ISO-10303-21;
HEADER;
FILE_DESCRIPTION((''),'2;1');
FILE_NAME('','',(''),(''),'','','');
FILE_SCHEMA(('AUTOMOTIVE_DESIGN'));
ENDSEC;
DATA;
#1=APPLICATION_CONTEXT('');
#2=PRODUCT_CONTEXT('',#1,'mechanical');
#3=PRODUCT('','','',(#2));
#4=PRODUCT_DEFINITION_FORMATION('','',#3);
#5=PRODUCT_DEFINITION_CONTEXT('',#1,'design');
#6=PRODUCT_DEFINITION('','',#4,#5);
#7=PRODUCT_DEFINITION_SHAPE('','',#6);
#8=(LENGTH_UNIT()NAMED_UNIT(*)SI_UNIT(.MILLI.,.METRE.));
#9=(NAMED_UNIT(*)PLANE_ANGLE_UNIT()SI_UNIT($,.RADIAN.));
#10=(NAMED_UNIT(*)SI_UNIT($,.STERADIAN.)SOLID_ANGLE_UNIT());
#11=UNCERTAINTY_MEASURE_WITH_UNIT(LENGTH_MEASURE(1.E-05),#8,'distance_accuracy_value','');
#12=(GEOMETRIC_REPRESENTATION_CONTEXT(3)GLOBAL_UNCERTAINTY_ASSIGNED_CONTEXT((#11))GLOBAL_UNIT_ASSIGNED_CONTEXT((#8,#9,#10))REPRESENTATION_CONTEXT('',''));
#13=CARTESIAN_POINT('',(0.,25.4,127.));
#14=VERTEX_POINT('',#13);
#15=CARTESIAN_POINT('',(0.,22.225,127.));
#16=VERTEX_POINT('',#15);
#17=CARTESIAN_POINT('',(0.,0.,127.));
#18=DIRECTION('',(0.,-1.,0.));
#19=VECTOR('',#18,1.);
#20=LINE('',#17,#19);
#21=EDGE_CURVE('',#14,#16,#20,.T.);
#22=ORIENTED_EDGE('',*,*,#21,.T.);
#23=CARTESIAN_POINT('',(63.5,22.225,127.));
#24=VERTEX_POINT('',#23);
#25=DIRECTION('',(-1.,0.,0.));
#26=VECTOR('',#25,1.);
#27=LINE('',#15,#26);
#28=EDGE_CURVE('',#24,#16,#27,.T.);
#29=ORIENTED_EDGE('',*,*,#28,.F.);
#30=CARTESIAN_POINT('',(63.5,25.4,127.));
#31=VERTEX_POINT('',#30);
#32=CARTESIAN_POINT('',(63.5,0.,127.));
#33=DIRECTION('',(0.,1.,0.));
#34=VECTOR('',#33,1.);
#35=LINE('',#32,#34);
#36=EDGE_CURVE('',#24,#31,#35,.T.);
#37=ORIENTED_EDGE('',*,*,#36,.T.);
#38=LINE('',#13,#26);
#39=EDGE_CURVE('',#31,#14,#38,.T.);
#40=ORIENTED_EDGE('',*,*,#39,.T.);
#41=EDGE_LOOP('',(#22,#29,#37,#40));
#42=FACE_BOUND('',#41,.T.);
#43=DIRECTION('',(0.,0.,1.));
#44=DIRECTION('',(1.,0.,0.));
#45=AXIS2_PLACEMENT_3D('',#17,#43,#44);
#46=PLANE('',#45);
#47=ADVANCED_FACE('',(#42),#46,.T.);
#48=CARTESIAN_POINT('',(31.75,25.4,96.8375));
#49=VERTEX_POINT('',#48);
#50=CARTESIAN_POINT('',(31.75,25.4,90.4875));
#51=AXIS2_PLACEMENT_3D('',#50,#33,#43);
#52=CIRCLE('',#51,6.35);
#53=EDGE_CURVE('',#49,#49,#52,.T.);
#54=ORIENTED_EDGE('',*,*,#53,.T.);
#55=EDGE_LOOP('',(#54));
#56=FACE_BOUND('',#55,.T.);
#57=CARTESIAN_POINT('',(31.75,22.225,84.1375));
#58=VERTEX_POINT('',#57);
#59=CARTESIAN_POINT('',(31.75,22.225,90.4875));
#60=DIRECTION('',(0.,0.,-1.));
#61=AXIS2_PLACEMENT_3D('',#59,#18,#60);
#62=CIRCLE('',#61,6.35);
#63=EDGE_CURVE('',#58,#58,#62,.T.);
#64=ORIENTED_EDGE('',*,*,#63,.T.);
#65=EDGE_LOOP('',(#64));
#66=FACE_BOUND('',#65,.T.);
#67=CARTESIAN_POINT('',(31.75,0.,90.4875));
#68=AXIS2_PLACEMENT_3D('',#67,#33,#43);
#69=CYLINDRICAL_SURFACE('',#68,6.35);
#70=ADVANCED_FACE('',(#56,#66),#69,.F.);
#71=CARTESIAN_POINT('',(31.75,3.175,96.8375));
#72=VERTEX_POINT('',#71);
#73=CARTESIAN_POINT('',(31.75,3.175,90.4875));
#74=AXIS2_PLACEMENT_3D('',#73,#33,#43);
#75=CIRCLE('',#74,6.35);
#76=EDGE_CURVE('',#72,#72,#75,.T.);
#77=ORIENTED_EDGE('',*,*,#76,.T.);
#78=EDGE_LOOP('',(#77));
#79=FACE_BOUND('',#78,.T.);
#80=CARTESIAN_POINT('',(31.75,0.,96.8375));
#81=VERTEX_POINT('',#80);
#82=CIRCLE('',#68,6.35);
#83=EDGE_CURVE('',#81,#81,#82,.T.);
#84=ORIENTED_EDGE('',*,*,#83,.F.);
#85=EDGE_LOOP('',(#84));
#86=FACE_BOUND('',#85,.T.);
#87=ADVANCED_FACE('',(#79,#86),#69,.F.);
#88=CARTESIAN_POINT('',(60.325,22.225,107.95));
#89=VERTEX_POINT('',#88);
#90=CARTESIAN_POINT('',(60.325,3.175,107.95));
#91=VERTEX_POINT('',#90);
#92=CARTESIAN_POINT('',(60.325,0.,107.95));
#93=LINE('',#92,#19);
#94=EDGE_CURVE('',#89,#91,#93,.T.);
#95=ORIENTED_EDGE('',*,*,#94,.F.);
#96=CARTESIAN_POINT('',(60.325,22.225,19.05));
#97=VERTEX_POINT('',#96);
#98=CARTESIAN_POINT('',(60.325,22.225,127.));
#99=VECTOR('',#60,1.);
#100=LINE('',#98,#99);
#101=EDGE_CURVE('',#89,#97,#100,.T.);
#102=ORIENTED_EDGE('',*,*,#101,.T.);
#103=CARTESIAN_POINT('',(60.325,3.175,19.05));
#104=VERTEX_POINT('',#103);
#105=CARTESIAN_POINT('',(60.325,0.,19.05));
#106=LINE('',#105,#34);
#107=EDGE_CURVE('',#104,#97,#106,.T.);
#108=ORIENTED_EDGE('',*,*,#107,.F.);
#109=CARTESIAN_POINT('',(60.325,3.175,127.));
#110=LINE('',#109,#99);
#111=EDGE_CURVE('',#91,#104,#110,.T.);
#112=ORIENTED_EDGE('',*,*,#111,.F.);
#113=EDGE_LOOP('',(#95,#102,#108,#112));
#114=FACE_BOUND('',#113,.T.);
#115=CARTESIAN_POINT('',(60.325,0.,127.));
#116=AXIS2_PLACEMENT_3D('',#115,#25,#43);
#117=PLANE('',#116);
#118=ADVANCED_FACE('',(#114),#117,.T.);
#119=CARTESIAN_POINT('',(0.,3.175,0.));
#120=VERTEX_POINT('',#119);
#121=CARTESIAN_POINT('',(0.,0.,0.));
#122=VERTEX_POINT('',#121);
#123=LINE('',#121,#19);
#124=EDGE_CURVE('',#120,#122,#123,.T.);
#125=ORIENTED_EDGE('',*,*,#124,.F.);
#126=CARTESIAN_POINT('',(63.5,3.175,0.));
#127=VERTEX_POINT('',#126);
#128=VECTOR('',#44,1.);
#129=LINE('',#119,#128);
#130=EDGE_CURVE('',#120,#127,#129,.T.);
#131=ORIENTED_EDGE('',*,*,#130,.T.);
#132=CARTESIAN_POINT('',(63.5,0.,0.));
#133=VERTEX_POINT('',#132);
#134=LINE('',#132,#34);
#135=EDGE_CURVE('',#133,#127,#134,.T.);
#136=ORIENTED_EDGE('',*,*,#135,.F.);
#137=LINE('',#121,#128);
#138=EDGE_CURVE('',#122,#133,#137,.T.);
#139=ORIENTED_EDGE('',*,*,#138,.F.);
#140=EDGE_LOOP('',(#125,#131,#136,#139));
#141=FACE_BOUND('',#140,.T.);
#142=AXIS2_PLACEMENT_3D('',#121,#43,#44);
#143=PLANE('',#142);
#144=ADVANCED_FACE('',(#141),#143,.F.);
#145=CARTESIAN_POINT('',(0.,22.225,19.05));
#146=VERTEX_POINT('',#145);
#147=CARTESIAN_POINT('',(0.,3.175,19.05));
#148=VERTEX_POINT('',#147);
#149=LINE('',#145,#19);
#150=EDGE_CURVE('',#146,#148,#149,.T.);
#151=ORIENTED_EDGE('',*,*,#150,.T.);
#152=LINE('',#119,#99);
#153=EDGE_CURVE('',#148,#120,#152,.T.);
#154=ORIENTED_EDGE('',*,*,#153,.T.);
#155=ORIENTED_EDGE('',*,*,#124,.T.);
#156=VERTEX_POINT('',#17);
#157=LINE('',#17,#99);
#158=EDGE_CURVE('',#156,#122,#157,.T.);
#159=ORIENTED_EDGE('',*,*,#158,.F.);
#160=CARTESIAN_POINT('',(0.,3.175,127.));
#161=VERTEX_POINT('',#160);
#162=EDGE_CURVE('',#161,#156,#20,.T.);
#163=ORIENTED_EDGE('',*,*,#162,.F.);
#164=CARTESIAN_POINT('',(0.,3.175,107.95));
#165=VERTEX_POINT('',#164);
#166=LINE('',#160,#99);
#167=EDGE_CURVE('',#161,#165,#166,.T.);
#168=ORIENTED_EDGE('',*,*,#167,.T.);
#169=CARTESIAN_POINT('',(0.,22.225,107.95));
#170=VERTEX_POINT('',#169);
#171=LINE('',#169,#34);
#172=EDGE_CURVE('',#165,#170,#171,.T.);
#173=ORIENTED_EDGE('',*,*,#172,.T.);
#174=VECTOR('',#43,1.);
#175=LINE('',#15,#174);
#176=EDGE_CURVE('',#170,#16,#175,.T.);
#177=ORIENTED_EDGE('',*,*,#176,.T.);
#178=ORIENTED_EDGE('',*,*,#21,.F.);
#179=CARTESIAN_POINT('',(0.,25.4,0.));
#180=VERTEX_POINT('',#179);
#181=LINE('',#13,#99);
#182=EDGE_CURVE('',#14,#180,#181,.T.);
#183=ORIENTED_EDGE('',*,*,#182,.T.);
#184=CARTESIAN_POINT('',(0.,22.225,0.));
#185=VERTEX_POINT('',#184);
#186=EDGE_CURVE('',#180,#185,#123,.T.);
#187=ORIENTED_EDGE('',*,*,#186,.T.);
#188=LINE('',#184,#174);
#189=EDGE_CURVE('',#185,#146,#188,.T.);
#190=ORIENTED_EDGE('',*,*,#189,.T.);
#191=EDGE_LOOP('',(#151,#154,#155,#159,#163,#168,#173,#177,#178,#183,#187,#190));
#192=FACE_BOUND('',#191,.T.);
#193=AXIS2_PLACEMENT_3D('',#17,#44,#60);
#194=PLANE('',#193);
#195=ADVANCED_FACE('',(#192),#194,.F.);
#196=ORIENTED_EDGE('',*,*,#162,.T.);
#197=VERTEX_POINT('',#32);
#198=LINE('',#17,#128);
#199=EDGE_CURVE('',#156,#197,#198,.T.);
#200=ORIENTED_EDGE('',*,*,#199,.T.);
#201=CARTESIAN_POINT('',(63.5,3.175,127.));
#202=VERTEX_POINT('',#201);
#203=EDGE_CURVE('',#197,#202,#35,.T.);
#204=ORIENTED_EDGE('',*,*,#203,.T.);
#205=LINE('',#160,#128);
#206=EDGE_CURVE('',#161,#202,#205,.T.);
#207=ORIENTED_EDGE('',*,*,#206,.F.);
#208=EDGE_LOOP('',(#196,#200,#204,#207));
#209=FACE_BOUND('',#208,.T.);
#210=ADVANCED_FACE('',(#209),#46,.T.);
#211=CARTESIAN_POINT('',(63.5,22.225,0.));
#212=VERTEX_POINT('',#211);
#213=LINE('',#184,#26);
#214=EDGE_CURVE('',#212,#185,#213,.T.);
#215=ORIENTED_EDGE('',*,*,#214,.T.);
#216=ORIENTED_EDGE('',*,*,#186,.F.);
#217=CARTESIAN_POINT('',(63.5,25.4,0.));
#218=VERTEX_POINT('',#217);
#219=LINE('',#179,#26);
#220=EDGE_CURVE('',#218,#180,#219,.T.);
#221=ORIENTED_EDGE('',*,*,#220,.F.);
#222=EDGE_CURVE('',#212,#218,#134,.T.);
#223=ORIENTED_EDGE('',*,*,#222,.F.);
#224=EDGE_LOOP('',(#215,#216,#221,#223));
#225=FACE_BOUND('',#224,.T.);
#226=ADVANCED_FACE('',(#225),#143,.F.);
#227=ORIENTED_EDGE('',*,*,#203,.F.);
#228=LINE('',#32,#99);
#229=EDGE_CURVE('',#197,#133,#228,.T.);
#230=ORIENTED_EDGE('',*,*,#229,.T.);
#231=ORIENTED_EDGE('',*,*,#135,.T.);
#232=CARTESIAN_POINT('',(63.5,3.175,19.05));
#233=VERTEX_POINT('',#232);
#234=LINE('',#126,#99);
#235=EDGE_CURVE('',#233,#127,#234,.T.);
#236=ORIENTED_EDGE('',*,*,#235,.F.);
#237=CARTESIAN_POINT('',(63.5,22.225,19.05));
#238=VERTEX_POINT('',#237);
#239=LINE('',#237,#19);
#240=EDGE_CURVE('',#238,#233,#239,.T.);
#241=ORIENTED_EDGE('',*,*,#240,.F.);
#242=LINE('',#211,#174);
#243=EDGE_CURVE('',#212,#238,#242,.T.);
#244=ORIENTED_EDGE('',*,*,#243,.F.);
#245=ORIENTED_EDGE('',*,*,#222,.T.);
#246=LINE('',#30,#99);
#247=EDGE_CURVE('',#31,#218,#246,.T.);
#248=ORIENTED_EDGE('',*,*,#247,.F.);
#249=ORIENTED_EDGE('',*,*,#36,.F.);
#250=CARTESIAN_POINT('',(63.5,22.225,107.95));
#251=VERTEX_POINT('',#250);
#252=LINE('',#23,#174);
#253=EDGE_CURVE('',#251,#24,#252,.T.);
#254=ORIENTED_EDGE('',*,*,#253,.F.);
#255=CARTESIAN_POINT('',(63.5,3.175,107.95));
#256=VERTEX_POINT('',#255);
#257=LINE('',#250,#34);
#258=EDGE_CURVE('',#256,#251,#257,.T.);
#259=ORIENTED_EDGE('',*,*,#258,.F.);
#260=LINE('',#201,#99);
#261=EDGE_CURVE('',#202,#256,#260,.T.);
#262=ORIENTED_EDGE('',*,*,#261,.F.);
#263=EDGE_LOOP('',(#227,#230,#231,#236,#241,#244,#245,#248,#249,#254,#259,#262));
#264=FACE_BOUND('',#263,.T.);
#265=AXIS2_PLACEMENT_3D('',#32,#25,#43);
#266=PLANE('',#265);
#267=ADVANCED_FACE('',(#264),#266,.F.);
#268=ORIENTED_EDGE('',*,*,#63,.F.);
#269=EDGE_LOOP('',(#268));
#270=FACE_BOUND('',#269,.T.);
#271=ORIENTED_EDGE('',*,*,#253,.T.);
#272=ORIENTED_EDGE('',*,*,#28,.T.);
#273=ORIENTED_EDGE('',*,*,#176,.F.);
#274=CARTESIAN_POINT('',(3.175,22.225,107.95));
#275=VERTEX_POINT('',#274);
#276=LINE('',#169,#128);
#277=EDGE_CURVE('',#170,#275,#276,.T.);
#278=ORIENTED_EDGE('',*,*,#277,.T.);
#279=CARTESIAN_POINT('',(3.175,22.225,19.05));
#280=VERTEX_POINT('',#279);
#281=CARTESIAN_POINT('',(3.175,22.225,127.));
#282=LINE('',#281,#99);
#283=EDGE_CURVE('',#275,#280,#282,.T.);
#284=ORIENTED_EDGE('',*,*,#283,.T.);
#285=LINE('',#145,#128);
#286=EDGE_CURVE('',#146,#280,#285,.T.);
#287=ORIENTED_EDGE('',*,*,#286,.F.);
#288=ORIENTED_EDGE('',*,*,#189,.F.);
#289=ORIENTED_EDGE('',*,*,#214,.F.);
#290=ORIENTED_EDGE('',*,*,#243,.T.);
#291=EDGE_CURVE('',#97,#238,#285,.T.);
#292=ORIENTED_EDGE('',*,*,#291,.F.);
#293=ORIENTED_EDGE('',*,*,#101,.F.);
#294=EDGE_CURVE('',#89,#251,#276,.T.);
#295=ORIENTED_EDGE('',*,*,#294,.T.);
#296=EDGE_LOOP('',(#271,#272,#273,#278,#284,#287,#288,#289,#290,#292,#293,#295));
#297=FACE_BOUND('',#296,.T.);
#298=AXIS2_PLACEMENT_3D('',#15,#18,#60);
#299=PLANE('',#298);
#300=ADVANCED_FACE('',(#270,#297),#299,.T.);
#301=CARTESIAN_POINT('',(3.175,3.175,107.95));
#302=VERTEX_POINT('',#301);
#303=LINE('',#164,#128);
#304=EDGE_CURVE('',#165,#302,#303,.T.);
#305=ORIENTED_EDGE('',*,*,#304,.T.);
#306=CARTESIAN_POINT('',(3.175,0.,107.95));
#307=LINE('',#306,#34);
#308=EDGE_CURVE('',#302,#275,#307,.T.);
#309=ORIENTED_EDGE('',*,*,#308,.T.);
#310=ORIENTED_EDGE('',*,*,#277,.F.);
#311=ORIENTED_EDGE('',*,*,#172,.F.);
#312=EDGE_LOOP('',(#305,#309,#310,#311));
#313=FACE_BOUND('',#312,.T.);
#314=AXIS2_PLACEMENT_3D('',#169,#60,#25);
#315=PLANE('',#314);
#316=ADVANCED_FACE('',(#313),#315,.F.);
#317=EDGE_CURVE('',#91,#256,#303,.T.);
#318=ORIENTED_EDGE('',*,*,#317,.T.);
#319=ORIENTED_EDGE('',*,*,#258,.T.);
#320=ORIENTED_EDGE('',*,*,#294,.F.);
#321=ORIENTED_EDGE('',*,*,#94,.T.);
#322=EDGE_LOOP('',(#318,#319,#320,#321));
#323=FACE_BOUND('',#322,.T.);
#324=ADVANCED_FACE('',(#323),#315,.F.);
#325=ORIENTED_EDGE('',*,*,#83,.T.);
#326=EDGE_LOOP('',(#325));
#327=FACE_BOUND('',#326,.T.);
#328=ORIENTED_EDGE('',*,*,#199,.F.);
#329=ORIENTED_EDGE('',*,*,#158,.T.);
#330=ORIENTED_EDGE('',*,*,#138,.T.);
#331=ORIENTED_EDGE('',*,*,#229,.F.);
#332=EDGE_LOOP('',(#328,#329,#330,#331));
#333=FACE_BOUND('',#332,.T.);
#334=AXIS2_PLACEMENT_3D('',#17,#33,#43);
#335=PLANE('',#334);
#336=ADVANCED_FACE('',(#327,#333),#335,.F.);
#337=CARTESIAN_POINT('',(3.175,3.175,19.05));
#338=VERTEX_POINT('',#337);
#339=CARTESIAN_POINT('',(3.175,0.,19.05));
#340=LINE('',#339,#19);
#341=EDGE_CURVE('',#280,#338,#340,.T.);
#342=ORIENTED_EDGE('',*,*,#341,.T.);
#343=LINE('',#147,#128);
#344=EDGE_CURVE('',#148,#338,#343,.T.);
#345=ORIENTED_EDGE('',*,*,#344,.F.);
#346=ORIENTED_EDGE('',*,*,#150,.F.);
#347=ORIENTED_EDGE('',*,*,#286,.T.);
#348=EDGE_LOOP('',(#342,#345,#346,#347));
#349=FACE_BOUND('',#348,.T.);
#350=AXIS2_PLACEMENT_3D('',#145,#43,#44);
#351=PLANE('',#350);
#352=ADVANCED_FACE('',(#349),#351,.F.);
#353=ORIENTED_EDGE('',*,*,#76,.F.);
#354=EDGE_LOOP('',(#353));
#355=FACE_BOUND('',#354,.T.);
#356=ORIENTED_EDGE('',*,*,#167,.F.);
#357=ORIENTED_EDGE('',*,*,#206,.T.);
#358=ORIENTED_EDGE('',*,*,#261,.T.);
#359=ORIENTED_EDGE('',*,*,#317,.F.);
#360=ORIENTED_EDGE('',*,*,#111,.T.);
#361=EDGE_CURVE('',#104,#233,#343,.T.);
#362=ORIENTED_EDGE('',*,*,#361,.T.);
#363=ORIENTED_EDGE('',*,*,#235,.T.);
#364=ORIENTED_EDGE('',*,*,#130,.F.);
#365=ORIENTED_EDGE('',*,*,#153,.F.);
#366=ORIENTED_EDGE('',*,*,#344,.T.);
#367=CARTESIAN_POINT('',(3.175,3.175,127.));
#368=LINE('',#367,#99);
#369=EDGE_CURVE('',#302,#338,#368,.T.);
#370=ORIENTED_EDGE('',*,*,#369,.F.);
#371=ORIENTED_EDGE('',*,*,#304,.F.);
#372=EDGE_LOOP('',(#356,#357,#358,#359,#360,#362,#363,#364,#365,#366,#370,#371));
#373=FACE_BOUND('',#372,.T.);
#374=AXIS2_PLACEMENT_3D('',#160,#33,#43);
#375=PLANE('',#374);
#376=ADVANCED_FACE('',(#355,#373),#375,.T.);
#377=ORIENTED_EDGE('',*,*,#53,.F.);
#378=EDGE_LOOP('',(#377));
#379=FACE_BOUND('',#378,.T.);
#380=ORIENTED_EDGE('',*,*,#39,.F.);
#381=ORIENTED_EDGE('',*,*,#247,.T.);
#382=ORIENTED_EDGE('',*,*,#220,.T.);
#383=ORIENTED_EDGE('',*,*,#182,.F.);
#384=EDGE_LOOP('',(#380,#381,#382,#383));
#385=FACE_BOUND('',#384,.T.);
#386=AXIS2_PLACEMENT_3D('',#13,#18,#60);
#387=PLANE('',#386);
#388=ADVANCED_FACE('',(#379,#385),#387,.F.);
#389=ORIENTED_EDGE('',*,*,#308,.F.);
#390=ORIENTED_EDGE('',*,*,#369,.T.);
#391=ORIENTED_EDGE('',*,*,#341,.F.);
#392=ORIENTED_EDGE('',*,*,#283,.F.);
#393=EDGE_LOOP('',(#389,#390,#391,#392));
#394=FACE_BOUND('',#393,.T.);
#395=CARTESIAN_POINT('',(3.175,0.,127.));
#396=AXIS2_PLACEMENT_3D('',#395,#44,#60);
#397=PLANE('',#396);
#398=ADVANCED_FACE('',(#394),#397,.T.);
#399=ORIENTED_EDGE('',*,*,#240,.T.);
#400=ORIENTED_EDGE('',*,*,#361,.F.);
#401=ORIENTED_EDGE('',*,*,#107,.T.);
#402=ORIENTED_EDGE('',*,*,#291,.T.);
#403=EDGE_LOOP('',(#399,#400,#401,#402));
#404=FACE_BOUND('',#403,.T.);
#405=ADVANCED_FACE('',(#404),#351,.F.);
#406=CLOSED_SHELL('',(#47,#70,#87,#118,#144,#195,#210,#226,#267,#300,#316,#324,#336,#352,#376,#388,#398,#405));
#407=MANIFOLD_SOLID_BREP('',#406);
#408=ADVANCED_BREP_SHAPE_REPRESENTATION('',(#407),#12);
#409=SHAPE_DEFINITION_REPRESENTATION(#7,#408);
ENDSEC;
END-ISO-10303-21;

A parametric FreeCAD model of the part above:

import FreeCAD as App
import Part
import Sketcher
from FreeCAD import Vector
Q = App.Units.Quantity

doc = App.newDocument("Part")
params = doc.addObject("Spreadsheet::Sheet", "Params")
for row, (alias, value) in enumerate([
    ("sketch1_height", "1 in"),
    ("sketch1_width", "2.5 in"),
    ("sketch1_width2", "2.25 in"),
    ("sketch1_height2", "0.75 in"),
    ("pad1_length", "5 in"),
    ("sketch2_width", "0.75 in"),
    ("sketch3_width", "0.75 in"),
    ("sketch4_diameter", "0.5 in"),
], start=1):
    params.set(f"A{row}", alias)
    params.set(f"B{row}", "=" + value)
    params.setAlias(f"B{row}", alias)

body = doc.addObject("PartDesign::Body", "Body")

# Sketch on XY plane
sketch1 = body.newObject("Sketcher::SketchObject", "Sketch")
sketch1.AttachmentSupport = (doc.getObject("XY_Plane"), [""])
sketch1.MapMode = "FlatFace"
sketch1.addGeometry(Part.LineSegment(Vector(0, 25, 0), Vector(0, 0, 0)), False)
sketch1.addGeometry(Part.LineSegment(Vector(0, 0, 0), Vector(64, 0, 0)), False)
sketch1.addGeometry(Part.LineSegment(Vector(64, 0, 0), Vector(64, 25, 0)), False)
sketch1.addGeometry(Part.LineSegment(Vector(64, 25, 0), Vector(0, 25, 0)), False)
sketch1.addGeometry(Part.LineSegment(Vector(60, 3, 0), Vector(3, 3, 0)), False)
sketch1.addGeometry(Part.LineSegment(Vector(3, 3, 0), Vector(3, 22, 0)), False)
sketch1.addGeometry(Part.LineSegment(Vector(3, 22, 0), Vector(60, 22, 0)), False)
sketch1.addGeometry(Part.LineSegment(Vector(60, 22, 0), Vector(60, 3, 0)), False)
sketch1.addConstraint(Sketcher.Constraint("Coincident", 0, 2, 1, 1))
sketch1.addConstraint(Sketcher.Constraint("Coincident", 1, 2, 2, 1))
sketch1.addConstraint(Sketcher.Constraint("Coincident", 2, 2, 3, 1))
sketch1.addConstraint(Sketcher.Constraint("Coincident", 3, 2, 0, 1))
sketch1.addConstraint(Sketcher.Constraint("Coincident", 4, 2, 5, 1))
sketch1.addConstraint(Sketcher.Constraint("Coincident", 5, 2, 6, 1))
sketch1.addConstraint(Sketcher.Constraint("Coincident", 6, 2, 7, 1))
sketch1.addConstraint(Sketcher.Constraint("Coincident", 7, 2, 4, 1))
sketch1.addConstraint(Sketcher.Constraint("Vertical", 0))
sketch1.addConstraint(Sketcher.Constraint("Horizontal", 1))
sketch1.addConstraint(Sketcher.Constraint("Vertical", 2))
sketch1.addConstraint(Sketcher.Constraint("Horizontal", 3))
sketch1.addConstraint(Sketcher.Constraint("Horizontal", 4))
sketch1.addConstraint(Sketcher.Constraint("Vertical", 5))
sketch1.addConstraint(Sketcher.Constraint("Horizontal", 6))
sketch1.addConstraint(Sketcher.Constraint("Vertical", 7))
sketch1.addConstraint(Sketcher.Constraint("Coincident", 0, 2, -1, 1))
sketch1.addConstraint(Sketcher.Constraint("DistanceY", 0, 2, 0, 1, Q("1 in")))
sketch1.addConstraint(Sketcher.Constraint("DistanceX", 1, 1, 1, 2, Q("2.5 in")))
sketch1.addConstraint(Sketcher.Constraint("DistanceX", 4, 2, 4, 1, Q("2.25 in")))
sketch1.addConstraint(Sketcher.Constraint("DistanceY", 5, 1, 5, 2, Q("0.75 in")))
sketch1.addConstraint(Sketcher.Constraint("DistanceX", -1, 1, 4, 2, Q("0.125 in")))
sketch1.addConstraint(Sketcher.Constraint("DistanceY", -1, 1, 4, 2, Q("0.125 in")))
sketch1.setExpression("Constraints[17]", "Params.sketch1_height")
sketch1.setExpression("Constraints[18]", "Params.sketch1_width")
sketch1.setExpression("Constraints[19]", "Params.sketch1_width2")
sketch1.setExpression("Constraints[20]", "Params.sketch1_height2")
pad1 = body.newObject("PartDesign::Pad", "Pad")
pad1.Profile = sketch1
pad1.setExpression("Length", "Params.pad1_length")

# Sketch on YZ plane
sketch2 = body.newObject("Sketcher::SketchObject", "Sketch001")
sketch2.AttachmentSupport = (doc.getObject("YZ_Plane"), [""])
sketch2.MapMode = "FlatFace"
sketch2.AttachmentOffset = App.Placement(Vector(0, 0, 2.5 * 25.4), App.Rotation())
sketch2.addGeometry(Part.LineSegment(Vector(22, 19, 0), Vector(3, 19, 0)), False)
sketch2.addGeometry(Part.LineSegment(Vector(3, 19, 0), Vector(3, 0, 0)), False)
sketch2.addGeometry(Part.LineSegment(Vector(3, 0, 0), Vector(22, 0, 0)), False)
sketch2.addGeometry(Part.LineSegment(Vector(22, 0, 0), Vector(22, 19, 0)), False)
sketch2.addConstraint(Sketcher.Constraint("Coincident", 0, 2, 1, 1))
sketch2.addConstraint(Sketcher.Constraint("Coincident", 1, 2, 2, 1))
sketch2.addConstraint(Sketcher.Constraint("Coincident", 2, 2, 3, 1))
sketch2.addConstraint(Sketcher.Constraint("Coincident", 3, 2, 0, 1))
sketch2.addConstraint(Sketcher.Constraint("Horizontal", 0))
sketch2.addConstraint(Sketcher.Constraint("Vertical", 1))
sketch2.addConstraint(Sketcher.Constraint("Horizontal", 2))
sketch2.addConstraint(Sketcher.Constraint("Vertical", 3))
sketch2.addConstraint(Sketcher.Constraint("PointOnObject", 1, 2, -1))
sketch2.addConstraint(Sketcher.Constraint("Equal", 2, 1))
sketch2.addConstraint(Sketcher.Constraint("DistanceX", 0, 2, 0, 1, Q("0.75 in")))
sketch2.addConstraint(Sketcher.Constraint("DistanceX", -1, 1, 0, 2, Q("0.125 in")))
sketch2.setExpression("Constraints[10]", "Params.sketch2_width")
pocket1 = body.newObject("PartDesign::Pocket", "Pocket")
pocket1.Profile = sketch2
pocket1.Type = "ThroughAll"

# Sketch on YZ plane
sketch3 = body.newObject("Sketcher::SketchObject", "Sketch002")
sketch3.AttachmentSupport = (doc.getObject("YZ_Plane"), [""])
sketch3.MapMode = "FlatFace"
sketch3.AttachmentOffset = App.Placement(Vector(0, 0, 2.5 * 25.4), App.Rotation())
sketch3.addGeometry(Part.LineSegment(Vector(22, 127, 0), Vector(3, 127, 0)), False)
sketch3.addGeometry(Part.LineSegment(Vector(3, 127, 0), Vector(3, 108, 0)), False)
sketch3.addGeometry(Part.LineSegment(Vector(3, 108, 0), Vector(22, 108, 0)), False)
sketch3.addGeometry(Part.LineSegment(Vector(22, 108, 0), Vector(22, 127, 0)), False)
sketch3.addConstraint(Sketcher.Constraint("Coincident", 0, 2, 1, 1))
sketch3.addConstraint(Sketcher.Constraint("Coincident", 1, 2, 2, 1))
sketch3.addConstraint(Sketcher.Constraint("Coincident", 2, 2, 3, 1))
sketch3.addConstraint(Sketcher.Constraint("Coincident", 3, 2, 0, 1))
sketch3.addConstraint(Sketcher.Constraint("Horizontal", 0))
sketch3.addConstraint(Sketcher.Constraint("Vertical", 1))
sketch3.addConstraint(Sketcher.Constraint("Horizontal", 2))
sketch3.addConstraint(Sketcher.Constraint("Vertical", 3))
sketch3.addConstraint(Sketcher.Constraint("Equal", 2, 1))
sketch3.addConstraint(Sketcher.Constraint("DistanceY", -1, 1, 0, 2, Q("5 in")))
sketch3.addConstraint(Sketcher.Constraint("DistanceX", 0, 2, 0, 1, Q("0.75 in")))
sketch3.addConstraint(Sketcher.Constraint("DistanceX", -1, 1, 0, 2, Q("0.125 in")))
sketch3.setExpression("Constraints[10]", "Params.sketch3_width")
pocket2 = body.newObject("PartDesign::Pocket", "Pocket001")
pocket2.Profile = sketch3
pocket2.Type = "ThroughAll"

# Sketch on XZ plane
sketch4 = body.newObject("Sketcher::SketchObject", "Sketch003")
sketch4.AttachmentSupport = (doc.getObject("XZ_Plane"), [""])
sketch4.MapMode = "FlatFace"
sketch4.AttachmentOffset = App.Placement(Vector(0, 0, -1 * 25.4), App.Rotation())
sketch4.addGeometry(Part.Circle(Vector(32, 90, 0), Vector(0, 0, 1), 6), False)
sketch4.addConstraint(Sketcher.Constraint("Diameter", 0, Q("0.5 in")))
sketch4.addConstraint(Sketcher.Constraint("DistanceX", -1, 1, 0, 3, Q("1.25 in")))
sketch4.addConstraint(Sketcher.Constraint("DistanceY", -1, 1, 0, 3, Q("3.5625 in")))
sketch4.setExpression("Constraints[0]", "Params.sketch4_diameter")
pocket3 = body.newObject("PartDesign::Pocket", "Pocket002")
pocket3.Profile = sketch4
pocket3.Type = "ThroughAll"
pocket3.Reversed = True

doc.recompute()
